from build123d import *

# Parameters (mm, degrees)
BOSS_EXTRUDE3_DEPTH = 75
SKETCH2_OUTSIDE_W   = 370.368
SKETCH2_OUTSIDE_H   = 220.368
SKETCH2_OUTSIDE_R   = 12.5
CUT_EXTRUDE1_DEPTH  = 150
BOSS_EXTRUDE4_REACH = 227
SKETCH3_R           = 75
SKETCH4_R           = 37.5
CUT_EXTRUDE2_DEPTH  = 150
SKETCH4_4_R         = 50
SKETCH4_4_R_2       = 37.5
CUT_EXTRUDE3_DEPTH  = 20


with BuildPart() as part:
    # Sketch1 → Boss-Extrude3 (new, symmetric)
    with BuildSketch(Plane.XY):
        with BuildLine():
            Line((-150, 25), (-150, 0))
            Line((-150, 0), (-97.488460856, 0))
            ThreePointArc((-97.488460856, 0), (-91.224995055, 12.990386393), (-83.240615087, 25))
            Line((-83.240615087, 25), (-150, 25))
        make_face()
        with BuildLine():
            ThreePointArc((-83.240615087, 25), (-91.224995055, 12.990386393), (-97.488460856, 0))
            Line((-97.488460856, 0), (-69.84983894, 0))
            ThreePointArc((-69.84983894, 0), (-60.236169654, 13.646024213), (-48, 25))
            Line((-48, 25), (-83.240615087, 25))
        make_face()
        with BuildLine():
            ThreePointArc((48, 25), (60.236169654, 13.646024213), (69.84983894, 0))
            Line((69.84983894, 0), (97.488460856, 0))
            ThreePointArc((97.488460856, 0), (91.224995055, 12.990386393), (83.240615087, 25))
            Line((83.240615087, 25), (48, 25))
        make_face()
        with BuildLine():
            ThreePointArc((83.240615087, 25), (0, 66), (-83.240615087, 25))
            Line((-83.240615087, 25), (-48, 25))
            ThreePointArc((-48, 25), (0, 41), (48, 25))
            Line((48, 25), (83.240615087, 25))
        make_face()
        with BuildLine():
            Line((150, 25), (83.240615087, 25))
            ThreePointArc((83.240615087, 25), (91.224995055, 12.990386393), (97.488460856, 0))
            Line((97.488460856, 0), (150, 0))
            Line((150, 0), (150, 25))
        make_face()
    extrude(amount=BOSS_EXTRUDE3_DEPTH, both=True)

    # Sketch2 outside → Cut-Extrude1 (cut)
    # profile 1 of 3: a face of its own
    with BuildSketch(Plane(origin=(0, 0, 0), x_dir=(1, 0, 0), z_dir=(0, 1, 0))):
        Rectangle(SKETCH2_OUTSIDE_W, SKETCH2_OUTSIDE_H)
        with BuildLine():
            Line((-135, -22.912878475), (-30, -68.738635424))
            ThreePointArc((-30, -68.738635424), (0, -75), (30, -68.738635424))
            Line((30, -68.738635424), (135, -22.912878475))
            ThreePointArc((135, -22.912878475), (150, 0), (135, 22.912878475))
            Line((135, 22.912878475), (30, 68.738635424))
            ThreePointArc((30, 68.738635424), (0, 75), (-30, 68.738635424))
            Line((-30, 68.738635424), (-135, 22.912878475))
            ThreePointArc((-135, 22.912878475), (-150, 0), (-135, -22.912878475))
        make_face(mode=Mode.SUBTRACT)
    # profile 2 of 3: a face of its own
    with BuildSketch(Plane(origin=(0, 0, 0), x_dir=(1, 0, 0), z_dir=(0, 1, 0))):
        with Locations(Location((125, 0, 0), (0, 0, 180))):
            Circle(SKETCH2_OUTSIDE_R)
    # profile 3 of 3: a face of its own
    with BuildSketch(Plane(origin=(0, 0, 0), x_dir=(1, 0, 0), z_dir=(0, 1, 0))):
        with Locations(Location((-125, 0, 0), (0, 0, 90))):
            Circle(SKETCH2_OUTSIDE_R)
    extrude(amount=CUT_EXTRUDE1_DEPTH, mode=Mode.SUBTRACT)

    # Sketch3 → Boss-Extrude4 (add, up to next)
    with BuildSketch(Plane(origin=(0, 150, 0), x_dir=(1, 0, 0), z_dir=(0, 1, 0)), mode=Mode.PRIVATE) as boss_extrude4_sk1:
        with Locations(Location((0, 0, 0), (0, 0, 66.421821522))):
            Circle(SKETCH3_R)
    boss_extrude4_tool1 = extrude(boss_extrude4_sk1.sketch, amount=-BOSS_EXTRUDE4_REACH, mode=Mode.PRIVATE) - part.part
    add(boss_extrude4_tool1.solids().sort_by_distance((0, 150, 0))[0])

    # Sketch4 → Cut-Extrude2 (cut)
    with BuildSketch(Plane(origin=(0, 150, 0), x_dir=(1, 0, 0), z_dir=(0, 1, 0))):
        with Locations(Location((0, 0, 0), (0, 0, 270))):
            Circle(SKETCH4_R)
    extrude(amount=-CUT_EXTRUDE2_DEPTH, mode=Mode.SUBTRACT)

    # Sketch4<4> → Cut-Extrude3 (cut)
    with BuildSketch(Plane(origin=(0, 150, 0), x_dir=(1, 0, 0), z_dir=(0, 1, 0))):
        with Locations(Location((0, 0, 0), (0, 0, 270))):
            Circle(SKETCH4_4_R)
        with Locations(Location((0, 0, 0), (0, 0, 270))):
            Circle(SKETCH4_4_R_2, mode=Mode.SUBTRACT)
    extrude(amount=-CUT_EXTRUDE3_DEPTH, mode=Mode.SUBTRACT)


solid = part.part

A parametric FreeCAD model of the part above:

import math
import FreeCAD as App
import Part
import Sketcher
from FreeCAD import Vector


def add_polygon(sketch, points):
    """Adds a closed chain of lines whose ends are joined by coincident constraints."""
    first, n = sketch.GeometryCount, len(points)
    for a, b in zip(points, points[1:] + points[:1]):
        sketch.addGeometry(Part.LineSegment(App.Vector(*a, 0), App.Vector(*b, 0)), False)
    for i in range(n):
        sketch.addConstraint(Sketcher.Constraint("Coincident", first + i, 2, first + (i + 1) % n, 1))

doc = App.newDocument("Part")
body = doc.addObject("PartDesign::Body", "Body")

# Sketch on XY plane
sketch1 = doc.addObject("Sketcher::SketchObject", "Sketch")
body.addObject(sketch1)
sketch1.AttachmentSupport = (doc.XY_Plane, [""])
sketch1.MapMode = "FlatFace"
sketch1.addGeometry(Part.ArcOfCircle(Part.Circle(Vector(0, -39, 0), Vector(0, 0, 1), 105), math.radians(38), math.radians(142)), False)
sketch1.addGeometry(Part.LineSegment(Vector(-83, 25, 0), Vector(-150, 25, 0)), False)
sketch1.addGeometry(Part.LineSegment(Vector(-150, 25, 0), Vector(-150, 0, 0)), False)
sketch1.addGeometry(Part.LineSegment(Vector(-150, 0, 0), Vector(-70, 0, 0)), False)
sketch1.addGeometry(Part.ArcOfCircle(Part.Circle(Vector(0, -39, 0), Vector(0, 0, 1), 80), math.radians(127), math.radians(151)), False)
sketch1.addGeometry(Part.ArcOfCircle(Part.Circle(Vector(0, -39, 0), Vector(0, 0, 1), 80), math.radians(53), math.radians(127)), False)
sketch1.addGeometry(Part.ArcOfCircle(Part.Circle(Vector(0, -39, 0), Vector(0, 0, 1), 80), math.radians(29), math.radians(53)), False)
sketch1.addGeometry(Part.LineSegment(Vector(70, 0, 0), Vector(150, 0, 0)), False)
sketch1.addGeometry(Part.LineSegment(Vector(150, 0, 0), Vector(150, 25, 0)), False)
sketch1.addGeometry(Part.LineSegment(Vector(150, 25, 0), Vector(83, 25, 0)), False)
sketch1.addConstraint(Sketcher.Constraint("Coincident", 0, 2, 1, 1))
sketch1.addConstraint(Sketcher.Constraint("Coincident", 1, 2, 2, 1))
sketch1.addConstraint(Sketcher.Constraint("Coincident", 2, 2, 3, 1))
sketch1.addConstraint(Sketcher.Constraint("Coincident", 3, 2, 4, 2))
sketch1.addConstraint(Sketcher.Constraint("Tangent", 4, 1, 5, 2))
sketch1.addConstraint(Sketcher.Constraint("Tangent", 5, 1, 6, 2))
sketch1.addConstraint(Sketcher.Constraint("Coincident", 6, 1, 7, 1))
sketch1.addConstraint(Sketcher.Constraint("Coincident", 7, 2, 8, 1))
sketch1.addConstraint(Sketcher.Constraint("Coincident", 8, 2, 9, 1))
sketch1.addConstraint(Sketcher.Constraint("Coincident", 9, 2, 0, 1))
sketch1.addConstraint(Sketcher.Constraint("Horizontal", 1))
sketch1.addConstraint(Sketcher.Constraint("Vertical", 2))
sketch1.addConstraint(Sketcher.Constraint("Horizontal", 3))
sketch1.addConstraint(Sketcher.Constraint("Horizontal", 7))
sketch1.addConstraint(Sketcher.Constraint("Vertical", 8))
sketch1.addConstraint(Sketcher.Constraint("Horizontal", 9))
sketch1.addConstraint(Sketcher.Constraint("Coincident", 4, 3, 0, 3))
sketch1.addConstraint(Sketcher.Constraint("Coincident", 6, 3, 0, 3))
sketch1.addConstraint(Sketcher.Constraint("Symmetric", 3, 2, 6, 1, -1, 1))
sketch1.addConstraint(Sketcher.Constraint("Symmetric", 4, 1, 5, 1, -2))
sketch1.addConstraint(Sketcher.Constraint("Symmetric", 1, 2, 8, 2, -2))
sketch1.addConstraint(Sketcher.Constraint("Horizontal", 1, 2, 4, 1))
sketch1.addConstraint(Sketcher.Constraint("Radius", 0, 105.0))
sketch1.addConstraint(Sketcher.Constraint("Radius", 4, 80.0))
sketch1.addConstraint(Sketcher.Constraint("DistanceY", 2, 2, 2, 1, 25.0))
sketch1.addConstraint(Sketcher.Constraint("DistanceY", 0, 3, -1, 1, 39.0))
sketch1.addConstraint(Sketcher.Constraint("DistanceX", 1, 2, -1, 1, 150.0))
pad1 = doc.addObject("PartDesign::Pad", "Pad")
body.addObject(pad1)
pad1.Profile = sketch1
pad1.Length = 150
pad1.Midplane = True

# Sketch on XZ plane
sketch2 = doc.addObject("Sketcher::SketchObject", "Sketch001")
body.addObject(sketch2)
sketch2.AttachmentSupport = (doc.XZ_Plane, [""])
sketch2.MapMode = "FlatFace"
add_polygon(sketch2, [(-185, -110), (-185, 110), (185, 110), (185, -110)])  # lines 0-3
sketch2.addGeometry(Part.LineSegment(Vector(-30, 69, 0), Vector(-135, 23, 0)), False)  # 4
sketch2.addGeometry(Part.ArcOfCircle(Part.Circle(Vector(-125, 0, 0), Vector(0, 0, 1), 25), math.radians(114), math.radians(246)), False)  # 5
sketch2.addGeometry(Part.LineSegment(Vector(-135, -23, 0), Vector(-30, -69, 0)), False)  # 6
sketch2.addGeometry(Part.ArcOfCircle(Part.Circle(Vector(0, 0, 0), Vector(0, 0, 1), 75), math.radians(-114), math.radians(-66)), False)  # 7
sketch2.addGeometry(Part.LineSegment(Vector(30, -69, 0), Vector(135, -23, 0)), False)  # 8
sketch2.addGeometry(Part.ArcOfCircle(Part.Circle(Vector(125, 0, 0), Vector(0, 0, 1), 25), math.radians(-66), math.radians(66)), False)  # 9
sketch2.addGeometry(Part.LineSegment(Vector(135, 23, 0), Vector(30, 69, 0)), False)  # 10
sketch2.addGeometry(Part.ArcOfCircle(Part.Circle(Vector(0, 0, 0), Vector(0, 0, 1), 75), math.radians(66), math.radians(114)), False)  # 11
sketch2.addGeometry(Part.Circle(Vector(125, 0, 0), Vector(0, 0, 1), 12), False)  # 12
sketch2.addGeometry(Part.Circle(Vector(-125, 0, 0), Vector(0, 0, 1), 12), False)  # 13
sketch2.addConstraint(Sketcher.Constraint("Tangent", 4, 2, 5, 1))
sketch2.addConstraint(Sketcher.Constraint("Tangent", 5, 2, 6, 1))
sketch2.addConstraint(Sketcher.Constraint("Tangent", 6, 2, 7, 1))
sketch2.addConstraint(Sketcher.Constraint("Tangent", 7, 2, 8, 1))
sketch2.addConstraint(Sketcher.Constraint("Tangent", 8, 2, 9, 1))
sketch2.addConstraint(Sketcher.Constraint("Tangent", 9, 2, 10, 1))
sketch2.addConstraint(Sketcher.Constraint("Tangent", 10, 2, 11, 1))
sketch2.addConstraint(Sketcher.Constraint("Tangent", 11, 2, 4, 1))
sketch2.addConstraint(Sketcher.Constraint("Vertical", 0))
sketch2.addConstraint(Sketcher.Constraint("Horizontal", 1))
sketch2.addConstraint(Sketcher.Constraint("Vertical", 2))
sketch2.addConstraint(Sketcher.Constraint("Horizontal", 3))
sketch2.addConstraint(Sketcher.Constraint("Coincident", 7, 3, -1, 1))
sketch2.addConstraint(Sketcher.Constraint("Coincident", 11, 3, -1, 1))
sketch2.addConstraint(Sketcher.Constraint("Coincident", 12, 3, 9, 3))
sketch2.addConstraint(Sketcher.Constraint("Coincident", 13, 3, 5, 3))
sketch2.addConstraint(Sketcher.Constraint("Equal", 5, 9))
sketch2.addConstraint(Sketcher.Constraint("Equal", 7, 11))
sketch2.addConstraint(Sketcher.Constraint("Equal", 12, 13))
sketch2.addConstraint(Sketcher.Constraint("Symmetric", 5, 3, 9, 3, -1, 1))
sketch2.addConstraint(Sketcher.Constraint("Symmetric", 0, 2, 2, 2, -1, 1))
sketch2.addConstraint(Sketcher.Constraint("PointOnObject", 5, 3, -1))
sketch2.addConstraint(Sketcher.Constraint("Diameter", 12, 25.0))
sketch2.addConstraint(Sketcher.Constraint("Radius", 5, 25.0))
sketch2.addConstraint(Sketcher.Constraint("Radius", 7, 75.0))
sketch2.addConstraint(Sketcher.Constraint("DistanceX", 5, 3, -1, 1, 125.0))
sketch2.addConstraint(Sketcher.Constraint("DistanceX", 1, 1, 1, 2, 370.368))
sketch2.addConstraint(Sketcher.Constraint("DistanceY", 0, 1, 0, 2, 220.368))
pocket1 = doc.addObject("PartDesign::Pocket", "Pocket")
body.addObject(pocket1)
pocket1.Profile = sketch2
pocket1.Length = 150

# Sketch on XZ plane
sketch3 = doc.addObject("Sketcher::SketchObject", "Sketch002")
body.addObject(sketch3)
sketch3.AttachmentSupport = (doc.XZ_Plane, [""])
sketch3.MapMode = "FlatFace"
sketch3.AttachmentOffset = App.Placement(Vector(0, 0, -150), App.Rotation())
sketch3.addGeometry(Part.Circle(Vector(0, 0, 0), Vector(0, 0, 1), 75), False)
sketch3.addConstraint(Sketcher.Constraint("Coincident", 0, 3, -1, 1))
sketch3.addConstraint(Sketcher.Constraint("Diameter", 0, 150.0))
pad2 = doc.addObject("PartDesign::Pad", "Pad001")
body.addObject(pad2)
pad2.Profile = sketch3
pad2.Type = "UpToFirst"

# Sketch on XZ plane
sketch4 = doc.addObject("Sketcher::SketchObject", "Sketch003")
body.addObject(sketch4)
sketch4.AttachmentSupport = (doc.XZ_Plane, [""])
sketch4.MapMode = "FlatFace"
sketch4.AttachmentOffset = App.Placement(Vector(0, 0, -150), App.Rotation())
sketch4.addGeometry(Part.Circle(Vector(0, 0, 0), Vector(0, 0, 1), 38), False)
sketch4.addConstraint(Sketcher.Constraint("Coincident", 0, 3, -1, 1))
sketch4.addConstraint(Sketcher.Constraint("Diameter", 0, 75.0))
pocket2 = doc.addObject("PartDesign::Pocket", "Pocket001")
body.addObject(pocket2)
pocket2.Profile = sketch4
pocket2.Length = 150
pocket2.Reversed = True

# Sketch on XZ plane
sketch5 = doc.addObject("Sketcher::SketchObject", "Sketch004")
body.addObject(sketch5)
sketch5.AttachmentSupport = (doc.XZ_Plane, [""])
sketch5.MapMode = "FlatFace"
sketch5.AttachmentOffset = App.Placement(Vector(0, 0, -150), App.Rotation())
sketch5.addGeometry(Part.Circle(Vector(0, 0, 0), Vector(0, 0, 1), 50), False)
sketch5.addGeometry(Part.Circle(Vector(0, 0, 0), Vector(0, 0, 1), 38), False)
sketch5.addConstraint(Sketcher.Constraint("Coincident", 0, 3, -1, 1))
sketch5.addConstraint(Sketcher.Constraint("Coincident", 1, 3, -1, 1))
sketch5.addConstraint(Sketcher.Constraint("Diameter", 0, 100.0))
sketch5.addConstraint(Sketcher.Constraint("Diameter", 1, 75.0))
pocket3 = doc.addObject("PartDesign::Pocket", "Pocket002")
body.addObject(pocket3)
pocket3.Profile = sketch5
pocket3.Length = 20
pocket3.Reversed = True

doc.recompute()
